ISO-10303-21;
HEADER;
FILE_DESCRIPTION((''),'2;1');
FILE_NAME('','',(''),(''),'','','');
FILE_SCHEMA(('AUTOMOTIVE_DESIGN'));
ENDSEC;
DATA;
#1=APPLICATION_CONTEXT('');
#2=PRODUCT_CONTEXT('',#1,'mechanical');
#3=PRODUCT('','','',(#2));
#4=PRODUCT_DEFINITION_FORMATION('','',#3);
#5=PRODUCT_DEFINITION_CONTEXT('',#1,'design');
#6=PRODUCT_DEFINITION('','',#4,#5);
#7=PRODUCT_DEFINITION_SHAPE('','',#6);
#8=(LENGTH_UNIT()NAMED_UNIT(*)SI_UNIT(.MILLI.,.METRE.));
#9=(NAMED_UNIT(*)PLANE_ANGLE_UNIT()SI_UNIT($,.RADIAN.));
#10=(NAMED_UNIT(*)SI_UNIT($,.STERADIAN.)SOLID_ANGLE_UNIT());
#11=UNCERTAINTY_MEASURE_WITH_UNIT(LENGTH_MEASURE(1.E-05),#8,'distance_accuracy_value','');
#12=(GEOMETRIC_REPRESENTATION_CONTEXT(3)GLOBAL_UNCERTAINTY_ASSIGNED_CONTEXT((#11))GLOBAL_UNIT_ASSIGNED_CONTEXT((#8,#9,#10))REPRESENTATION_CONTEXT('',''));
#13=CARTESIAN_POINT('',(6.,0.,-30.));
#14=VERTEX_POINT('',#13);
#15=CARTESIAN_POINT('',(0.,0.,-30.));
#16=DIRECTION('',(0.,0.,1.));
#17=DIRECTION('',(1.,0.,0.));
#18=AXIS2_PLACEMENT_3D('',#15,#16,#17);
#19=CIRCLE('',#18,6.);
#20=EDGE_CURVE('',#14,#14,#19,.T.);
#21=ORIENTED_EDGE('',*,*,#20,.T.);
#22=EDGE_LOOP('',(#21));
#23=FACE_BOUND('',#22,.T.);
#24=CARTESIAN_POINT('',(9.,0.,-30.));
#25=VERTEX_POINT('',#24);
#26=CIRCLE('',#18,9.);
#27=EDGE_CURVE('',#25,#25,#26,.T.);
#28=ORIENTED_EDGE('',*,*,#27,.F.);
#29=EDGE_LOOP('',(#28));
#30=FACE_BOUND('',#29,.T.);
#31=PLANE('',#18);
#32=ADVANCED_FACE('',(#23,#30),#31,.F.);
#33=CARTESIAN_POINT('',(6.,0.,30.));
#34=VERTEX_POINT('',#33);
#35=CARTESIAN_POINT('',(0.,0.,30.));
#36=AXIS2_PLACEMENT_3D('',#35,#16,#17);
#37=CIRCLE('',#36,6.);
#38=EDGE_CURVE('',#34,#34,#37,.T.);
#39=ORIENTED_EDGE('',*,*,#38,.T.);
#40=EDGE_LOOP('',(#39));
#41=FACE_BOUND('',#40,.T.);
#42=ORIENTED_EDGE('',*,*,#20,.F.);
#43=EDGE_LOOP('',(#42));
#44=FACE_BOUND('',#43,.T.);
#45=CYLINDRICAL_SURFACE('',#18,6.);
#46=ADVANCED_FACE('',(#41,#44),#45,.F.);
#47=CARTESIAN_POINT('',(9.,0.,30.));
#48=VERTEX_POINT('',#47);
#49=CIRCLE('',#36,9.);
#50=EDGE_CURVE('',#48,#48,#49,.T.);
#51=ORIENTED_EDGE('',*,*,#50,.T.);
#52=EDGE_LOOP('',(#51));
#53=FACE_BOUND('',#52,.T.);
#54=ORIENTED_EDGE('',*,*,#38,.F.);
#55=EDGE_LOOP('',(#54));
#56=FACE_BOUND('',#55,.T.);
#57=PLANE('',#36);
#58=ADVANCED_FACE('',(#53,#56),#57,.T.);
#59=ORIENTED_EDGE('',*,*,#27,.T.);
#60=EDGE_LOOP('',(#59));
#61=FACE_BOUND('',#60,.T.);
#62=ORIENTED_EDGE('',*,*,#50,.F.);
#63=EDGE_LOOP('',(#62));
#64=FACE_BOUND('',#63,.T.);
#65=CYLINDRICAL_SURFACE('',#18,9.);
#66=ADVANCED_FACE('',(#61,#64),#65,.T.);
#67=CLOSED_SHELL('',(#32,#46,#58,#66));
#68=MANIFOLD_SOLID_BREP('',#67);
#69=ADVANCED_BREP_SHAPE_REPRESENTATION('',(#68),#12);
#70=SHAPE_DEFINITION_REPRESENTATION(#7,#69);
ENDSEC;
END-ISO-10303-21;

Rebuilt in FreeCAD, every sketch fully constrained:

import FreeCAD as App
import Part
import Sketcher

V = App.Vector

doc = App.newDocument("Part")
body = doc.addObject("PartDesign::Body", "Body")

sketch1 = doc.addObject("Sketcher::SketchObject", "Sketch")
body.addObject(sketch1)
sketch1.AttachmentSupport = (doc.XY_Plane, [""])
sketch1.MapMode = "FlatFace"
sketch1.addGeometry(Part.Circle(V(0, 0, 0), V(0, 0, 1), 9), False)
sketch1.addGeometry(Part.Circle(V(0, 0, 0), V(0, 0, 1), 6), False)
sketch1.addConstraint(Sketcher.Constraint("Coincident", 0, 3, -1, 1))
sketch1.addConstraint(Sketcher.Constraint("Coincident", 1, 3, -1, 1))
sketch1.addConstraint(Sketcher.Constraint("Diameter", 0, 18.0))
sketch1.addConstraint(Sketcher.Constraint("Diameter", 1, 12.0))
pad1 = doc.addObject("PartDesign::Pad", "Pad")
body.addObject(pad1)
pad1.Profile = sketch1
pad1.Type = "TwoLengths"
pad1.Length = 30
pad1.Length2 = 30

doc.recompute()
